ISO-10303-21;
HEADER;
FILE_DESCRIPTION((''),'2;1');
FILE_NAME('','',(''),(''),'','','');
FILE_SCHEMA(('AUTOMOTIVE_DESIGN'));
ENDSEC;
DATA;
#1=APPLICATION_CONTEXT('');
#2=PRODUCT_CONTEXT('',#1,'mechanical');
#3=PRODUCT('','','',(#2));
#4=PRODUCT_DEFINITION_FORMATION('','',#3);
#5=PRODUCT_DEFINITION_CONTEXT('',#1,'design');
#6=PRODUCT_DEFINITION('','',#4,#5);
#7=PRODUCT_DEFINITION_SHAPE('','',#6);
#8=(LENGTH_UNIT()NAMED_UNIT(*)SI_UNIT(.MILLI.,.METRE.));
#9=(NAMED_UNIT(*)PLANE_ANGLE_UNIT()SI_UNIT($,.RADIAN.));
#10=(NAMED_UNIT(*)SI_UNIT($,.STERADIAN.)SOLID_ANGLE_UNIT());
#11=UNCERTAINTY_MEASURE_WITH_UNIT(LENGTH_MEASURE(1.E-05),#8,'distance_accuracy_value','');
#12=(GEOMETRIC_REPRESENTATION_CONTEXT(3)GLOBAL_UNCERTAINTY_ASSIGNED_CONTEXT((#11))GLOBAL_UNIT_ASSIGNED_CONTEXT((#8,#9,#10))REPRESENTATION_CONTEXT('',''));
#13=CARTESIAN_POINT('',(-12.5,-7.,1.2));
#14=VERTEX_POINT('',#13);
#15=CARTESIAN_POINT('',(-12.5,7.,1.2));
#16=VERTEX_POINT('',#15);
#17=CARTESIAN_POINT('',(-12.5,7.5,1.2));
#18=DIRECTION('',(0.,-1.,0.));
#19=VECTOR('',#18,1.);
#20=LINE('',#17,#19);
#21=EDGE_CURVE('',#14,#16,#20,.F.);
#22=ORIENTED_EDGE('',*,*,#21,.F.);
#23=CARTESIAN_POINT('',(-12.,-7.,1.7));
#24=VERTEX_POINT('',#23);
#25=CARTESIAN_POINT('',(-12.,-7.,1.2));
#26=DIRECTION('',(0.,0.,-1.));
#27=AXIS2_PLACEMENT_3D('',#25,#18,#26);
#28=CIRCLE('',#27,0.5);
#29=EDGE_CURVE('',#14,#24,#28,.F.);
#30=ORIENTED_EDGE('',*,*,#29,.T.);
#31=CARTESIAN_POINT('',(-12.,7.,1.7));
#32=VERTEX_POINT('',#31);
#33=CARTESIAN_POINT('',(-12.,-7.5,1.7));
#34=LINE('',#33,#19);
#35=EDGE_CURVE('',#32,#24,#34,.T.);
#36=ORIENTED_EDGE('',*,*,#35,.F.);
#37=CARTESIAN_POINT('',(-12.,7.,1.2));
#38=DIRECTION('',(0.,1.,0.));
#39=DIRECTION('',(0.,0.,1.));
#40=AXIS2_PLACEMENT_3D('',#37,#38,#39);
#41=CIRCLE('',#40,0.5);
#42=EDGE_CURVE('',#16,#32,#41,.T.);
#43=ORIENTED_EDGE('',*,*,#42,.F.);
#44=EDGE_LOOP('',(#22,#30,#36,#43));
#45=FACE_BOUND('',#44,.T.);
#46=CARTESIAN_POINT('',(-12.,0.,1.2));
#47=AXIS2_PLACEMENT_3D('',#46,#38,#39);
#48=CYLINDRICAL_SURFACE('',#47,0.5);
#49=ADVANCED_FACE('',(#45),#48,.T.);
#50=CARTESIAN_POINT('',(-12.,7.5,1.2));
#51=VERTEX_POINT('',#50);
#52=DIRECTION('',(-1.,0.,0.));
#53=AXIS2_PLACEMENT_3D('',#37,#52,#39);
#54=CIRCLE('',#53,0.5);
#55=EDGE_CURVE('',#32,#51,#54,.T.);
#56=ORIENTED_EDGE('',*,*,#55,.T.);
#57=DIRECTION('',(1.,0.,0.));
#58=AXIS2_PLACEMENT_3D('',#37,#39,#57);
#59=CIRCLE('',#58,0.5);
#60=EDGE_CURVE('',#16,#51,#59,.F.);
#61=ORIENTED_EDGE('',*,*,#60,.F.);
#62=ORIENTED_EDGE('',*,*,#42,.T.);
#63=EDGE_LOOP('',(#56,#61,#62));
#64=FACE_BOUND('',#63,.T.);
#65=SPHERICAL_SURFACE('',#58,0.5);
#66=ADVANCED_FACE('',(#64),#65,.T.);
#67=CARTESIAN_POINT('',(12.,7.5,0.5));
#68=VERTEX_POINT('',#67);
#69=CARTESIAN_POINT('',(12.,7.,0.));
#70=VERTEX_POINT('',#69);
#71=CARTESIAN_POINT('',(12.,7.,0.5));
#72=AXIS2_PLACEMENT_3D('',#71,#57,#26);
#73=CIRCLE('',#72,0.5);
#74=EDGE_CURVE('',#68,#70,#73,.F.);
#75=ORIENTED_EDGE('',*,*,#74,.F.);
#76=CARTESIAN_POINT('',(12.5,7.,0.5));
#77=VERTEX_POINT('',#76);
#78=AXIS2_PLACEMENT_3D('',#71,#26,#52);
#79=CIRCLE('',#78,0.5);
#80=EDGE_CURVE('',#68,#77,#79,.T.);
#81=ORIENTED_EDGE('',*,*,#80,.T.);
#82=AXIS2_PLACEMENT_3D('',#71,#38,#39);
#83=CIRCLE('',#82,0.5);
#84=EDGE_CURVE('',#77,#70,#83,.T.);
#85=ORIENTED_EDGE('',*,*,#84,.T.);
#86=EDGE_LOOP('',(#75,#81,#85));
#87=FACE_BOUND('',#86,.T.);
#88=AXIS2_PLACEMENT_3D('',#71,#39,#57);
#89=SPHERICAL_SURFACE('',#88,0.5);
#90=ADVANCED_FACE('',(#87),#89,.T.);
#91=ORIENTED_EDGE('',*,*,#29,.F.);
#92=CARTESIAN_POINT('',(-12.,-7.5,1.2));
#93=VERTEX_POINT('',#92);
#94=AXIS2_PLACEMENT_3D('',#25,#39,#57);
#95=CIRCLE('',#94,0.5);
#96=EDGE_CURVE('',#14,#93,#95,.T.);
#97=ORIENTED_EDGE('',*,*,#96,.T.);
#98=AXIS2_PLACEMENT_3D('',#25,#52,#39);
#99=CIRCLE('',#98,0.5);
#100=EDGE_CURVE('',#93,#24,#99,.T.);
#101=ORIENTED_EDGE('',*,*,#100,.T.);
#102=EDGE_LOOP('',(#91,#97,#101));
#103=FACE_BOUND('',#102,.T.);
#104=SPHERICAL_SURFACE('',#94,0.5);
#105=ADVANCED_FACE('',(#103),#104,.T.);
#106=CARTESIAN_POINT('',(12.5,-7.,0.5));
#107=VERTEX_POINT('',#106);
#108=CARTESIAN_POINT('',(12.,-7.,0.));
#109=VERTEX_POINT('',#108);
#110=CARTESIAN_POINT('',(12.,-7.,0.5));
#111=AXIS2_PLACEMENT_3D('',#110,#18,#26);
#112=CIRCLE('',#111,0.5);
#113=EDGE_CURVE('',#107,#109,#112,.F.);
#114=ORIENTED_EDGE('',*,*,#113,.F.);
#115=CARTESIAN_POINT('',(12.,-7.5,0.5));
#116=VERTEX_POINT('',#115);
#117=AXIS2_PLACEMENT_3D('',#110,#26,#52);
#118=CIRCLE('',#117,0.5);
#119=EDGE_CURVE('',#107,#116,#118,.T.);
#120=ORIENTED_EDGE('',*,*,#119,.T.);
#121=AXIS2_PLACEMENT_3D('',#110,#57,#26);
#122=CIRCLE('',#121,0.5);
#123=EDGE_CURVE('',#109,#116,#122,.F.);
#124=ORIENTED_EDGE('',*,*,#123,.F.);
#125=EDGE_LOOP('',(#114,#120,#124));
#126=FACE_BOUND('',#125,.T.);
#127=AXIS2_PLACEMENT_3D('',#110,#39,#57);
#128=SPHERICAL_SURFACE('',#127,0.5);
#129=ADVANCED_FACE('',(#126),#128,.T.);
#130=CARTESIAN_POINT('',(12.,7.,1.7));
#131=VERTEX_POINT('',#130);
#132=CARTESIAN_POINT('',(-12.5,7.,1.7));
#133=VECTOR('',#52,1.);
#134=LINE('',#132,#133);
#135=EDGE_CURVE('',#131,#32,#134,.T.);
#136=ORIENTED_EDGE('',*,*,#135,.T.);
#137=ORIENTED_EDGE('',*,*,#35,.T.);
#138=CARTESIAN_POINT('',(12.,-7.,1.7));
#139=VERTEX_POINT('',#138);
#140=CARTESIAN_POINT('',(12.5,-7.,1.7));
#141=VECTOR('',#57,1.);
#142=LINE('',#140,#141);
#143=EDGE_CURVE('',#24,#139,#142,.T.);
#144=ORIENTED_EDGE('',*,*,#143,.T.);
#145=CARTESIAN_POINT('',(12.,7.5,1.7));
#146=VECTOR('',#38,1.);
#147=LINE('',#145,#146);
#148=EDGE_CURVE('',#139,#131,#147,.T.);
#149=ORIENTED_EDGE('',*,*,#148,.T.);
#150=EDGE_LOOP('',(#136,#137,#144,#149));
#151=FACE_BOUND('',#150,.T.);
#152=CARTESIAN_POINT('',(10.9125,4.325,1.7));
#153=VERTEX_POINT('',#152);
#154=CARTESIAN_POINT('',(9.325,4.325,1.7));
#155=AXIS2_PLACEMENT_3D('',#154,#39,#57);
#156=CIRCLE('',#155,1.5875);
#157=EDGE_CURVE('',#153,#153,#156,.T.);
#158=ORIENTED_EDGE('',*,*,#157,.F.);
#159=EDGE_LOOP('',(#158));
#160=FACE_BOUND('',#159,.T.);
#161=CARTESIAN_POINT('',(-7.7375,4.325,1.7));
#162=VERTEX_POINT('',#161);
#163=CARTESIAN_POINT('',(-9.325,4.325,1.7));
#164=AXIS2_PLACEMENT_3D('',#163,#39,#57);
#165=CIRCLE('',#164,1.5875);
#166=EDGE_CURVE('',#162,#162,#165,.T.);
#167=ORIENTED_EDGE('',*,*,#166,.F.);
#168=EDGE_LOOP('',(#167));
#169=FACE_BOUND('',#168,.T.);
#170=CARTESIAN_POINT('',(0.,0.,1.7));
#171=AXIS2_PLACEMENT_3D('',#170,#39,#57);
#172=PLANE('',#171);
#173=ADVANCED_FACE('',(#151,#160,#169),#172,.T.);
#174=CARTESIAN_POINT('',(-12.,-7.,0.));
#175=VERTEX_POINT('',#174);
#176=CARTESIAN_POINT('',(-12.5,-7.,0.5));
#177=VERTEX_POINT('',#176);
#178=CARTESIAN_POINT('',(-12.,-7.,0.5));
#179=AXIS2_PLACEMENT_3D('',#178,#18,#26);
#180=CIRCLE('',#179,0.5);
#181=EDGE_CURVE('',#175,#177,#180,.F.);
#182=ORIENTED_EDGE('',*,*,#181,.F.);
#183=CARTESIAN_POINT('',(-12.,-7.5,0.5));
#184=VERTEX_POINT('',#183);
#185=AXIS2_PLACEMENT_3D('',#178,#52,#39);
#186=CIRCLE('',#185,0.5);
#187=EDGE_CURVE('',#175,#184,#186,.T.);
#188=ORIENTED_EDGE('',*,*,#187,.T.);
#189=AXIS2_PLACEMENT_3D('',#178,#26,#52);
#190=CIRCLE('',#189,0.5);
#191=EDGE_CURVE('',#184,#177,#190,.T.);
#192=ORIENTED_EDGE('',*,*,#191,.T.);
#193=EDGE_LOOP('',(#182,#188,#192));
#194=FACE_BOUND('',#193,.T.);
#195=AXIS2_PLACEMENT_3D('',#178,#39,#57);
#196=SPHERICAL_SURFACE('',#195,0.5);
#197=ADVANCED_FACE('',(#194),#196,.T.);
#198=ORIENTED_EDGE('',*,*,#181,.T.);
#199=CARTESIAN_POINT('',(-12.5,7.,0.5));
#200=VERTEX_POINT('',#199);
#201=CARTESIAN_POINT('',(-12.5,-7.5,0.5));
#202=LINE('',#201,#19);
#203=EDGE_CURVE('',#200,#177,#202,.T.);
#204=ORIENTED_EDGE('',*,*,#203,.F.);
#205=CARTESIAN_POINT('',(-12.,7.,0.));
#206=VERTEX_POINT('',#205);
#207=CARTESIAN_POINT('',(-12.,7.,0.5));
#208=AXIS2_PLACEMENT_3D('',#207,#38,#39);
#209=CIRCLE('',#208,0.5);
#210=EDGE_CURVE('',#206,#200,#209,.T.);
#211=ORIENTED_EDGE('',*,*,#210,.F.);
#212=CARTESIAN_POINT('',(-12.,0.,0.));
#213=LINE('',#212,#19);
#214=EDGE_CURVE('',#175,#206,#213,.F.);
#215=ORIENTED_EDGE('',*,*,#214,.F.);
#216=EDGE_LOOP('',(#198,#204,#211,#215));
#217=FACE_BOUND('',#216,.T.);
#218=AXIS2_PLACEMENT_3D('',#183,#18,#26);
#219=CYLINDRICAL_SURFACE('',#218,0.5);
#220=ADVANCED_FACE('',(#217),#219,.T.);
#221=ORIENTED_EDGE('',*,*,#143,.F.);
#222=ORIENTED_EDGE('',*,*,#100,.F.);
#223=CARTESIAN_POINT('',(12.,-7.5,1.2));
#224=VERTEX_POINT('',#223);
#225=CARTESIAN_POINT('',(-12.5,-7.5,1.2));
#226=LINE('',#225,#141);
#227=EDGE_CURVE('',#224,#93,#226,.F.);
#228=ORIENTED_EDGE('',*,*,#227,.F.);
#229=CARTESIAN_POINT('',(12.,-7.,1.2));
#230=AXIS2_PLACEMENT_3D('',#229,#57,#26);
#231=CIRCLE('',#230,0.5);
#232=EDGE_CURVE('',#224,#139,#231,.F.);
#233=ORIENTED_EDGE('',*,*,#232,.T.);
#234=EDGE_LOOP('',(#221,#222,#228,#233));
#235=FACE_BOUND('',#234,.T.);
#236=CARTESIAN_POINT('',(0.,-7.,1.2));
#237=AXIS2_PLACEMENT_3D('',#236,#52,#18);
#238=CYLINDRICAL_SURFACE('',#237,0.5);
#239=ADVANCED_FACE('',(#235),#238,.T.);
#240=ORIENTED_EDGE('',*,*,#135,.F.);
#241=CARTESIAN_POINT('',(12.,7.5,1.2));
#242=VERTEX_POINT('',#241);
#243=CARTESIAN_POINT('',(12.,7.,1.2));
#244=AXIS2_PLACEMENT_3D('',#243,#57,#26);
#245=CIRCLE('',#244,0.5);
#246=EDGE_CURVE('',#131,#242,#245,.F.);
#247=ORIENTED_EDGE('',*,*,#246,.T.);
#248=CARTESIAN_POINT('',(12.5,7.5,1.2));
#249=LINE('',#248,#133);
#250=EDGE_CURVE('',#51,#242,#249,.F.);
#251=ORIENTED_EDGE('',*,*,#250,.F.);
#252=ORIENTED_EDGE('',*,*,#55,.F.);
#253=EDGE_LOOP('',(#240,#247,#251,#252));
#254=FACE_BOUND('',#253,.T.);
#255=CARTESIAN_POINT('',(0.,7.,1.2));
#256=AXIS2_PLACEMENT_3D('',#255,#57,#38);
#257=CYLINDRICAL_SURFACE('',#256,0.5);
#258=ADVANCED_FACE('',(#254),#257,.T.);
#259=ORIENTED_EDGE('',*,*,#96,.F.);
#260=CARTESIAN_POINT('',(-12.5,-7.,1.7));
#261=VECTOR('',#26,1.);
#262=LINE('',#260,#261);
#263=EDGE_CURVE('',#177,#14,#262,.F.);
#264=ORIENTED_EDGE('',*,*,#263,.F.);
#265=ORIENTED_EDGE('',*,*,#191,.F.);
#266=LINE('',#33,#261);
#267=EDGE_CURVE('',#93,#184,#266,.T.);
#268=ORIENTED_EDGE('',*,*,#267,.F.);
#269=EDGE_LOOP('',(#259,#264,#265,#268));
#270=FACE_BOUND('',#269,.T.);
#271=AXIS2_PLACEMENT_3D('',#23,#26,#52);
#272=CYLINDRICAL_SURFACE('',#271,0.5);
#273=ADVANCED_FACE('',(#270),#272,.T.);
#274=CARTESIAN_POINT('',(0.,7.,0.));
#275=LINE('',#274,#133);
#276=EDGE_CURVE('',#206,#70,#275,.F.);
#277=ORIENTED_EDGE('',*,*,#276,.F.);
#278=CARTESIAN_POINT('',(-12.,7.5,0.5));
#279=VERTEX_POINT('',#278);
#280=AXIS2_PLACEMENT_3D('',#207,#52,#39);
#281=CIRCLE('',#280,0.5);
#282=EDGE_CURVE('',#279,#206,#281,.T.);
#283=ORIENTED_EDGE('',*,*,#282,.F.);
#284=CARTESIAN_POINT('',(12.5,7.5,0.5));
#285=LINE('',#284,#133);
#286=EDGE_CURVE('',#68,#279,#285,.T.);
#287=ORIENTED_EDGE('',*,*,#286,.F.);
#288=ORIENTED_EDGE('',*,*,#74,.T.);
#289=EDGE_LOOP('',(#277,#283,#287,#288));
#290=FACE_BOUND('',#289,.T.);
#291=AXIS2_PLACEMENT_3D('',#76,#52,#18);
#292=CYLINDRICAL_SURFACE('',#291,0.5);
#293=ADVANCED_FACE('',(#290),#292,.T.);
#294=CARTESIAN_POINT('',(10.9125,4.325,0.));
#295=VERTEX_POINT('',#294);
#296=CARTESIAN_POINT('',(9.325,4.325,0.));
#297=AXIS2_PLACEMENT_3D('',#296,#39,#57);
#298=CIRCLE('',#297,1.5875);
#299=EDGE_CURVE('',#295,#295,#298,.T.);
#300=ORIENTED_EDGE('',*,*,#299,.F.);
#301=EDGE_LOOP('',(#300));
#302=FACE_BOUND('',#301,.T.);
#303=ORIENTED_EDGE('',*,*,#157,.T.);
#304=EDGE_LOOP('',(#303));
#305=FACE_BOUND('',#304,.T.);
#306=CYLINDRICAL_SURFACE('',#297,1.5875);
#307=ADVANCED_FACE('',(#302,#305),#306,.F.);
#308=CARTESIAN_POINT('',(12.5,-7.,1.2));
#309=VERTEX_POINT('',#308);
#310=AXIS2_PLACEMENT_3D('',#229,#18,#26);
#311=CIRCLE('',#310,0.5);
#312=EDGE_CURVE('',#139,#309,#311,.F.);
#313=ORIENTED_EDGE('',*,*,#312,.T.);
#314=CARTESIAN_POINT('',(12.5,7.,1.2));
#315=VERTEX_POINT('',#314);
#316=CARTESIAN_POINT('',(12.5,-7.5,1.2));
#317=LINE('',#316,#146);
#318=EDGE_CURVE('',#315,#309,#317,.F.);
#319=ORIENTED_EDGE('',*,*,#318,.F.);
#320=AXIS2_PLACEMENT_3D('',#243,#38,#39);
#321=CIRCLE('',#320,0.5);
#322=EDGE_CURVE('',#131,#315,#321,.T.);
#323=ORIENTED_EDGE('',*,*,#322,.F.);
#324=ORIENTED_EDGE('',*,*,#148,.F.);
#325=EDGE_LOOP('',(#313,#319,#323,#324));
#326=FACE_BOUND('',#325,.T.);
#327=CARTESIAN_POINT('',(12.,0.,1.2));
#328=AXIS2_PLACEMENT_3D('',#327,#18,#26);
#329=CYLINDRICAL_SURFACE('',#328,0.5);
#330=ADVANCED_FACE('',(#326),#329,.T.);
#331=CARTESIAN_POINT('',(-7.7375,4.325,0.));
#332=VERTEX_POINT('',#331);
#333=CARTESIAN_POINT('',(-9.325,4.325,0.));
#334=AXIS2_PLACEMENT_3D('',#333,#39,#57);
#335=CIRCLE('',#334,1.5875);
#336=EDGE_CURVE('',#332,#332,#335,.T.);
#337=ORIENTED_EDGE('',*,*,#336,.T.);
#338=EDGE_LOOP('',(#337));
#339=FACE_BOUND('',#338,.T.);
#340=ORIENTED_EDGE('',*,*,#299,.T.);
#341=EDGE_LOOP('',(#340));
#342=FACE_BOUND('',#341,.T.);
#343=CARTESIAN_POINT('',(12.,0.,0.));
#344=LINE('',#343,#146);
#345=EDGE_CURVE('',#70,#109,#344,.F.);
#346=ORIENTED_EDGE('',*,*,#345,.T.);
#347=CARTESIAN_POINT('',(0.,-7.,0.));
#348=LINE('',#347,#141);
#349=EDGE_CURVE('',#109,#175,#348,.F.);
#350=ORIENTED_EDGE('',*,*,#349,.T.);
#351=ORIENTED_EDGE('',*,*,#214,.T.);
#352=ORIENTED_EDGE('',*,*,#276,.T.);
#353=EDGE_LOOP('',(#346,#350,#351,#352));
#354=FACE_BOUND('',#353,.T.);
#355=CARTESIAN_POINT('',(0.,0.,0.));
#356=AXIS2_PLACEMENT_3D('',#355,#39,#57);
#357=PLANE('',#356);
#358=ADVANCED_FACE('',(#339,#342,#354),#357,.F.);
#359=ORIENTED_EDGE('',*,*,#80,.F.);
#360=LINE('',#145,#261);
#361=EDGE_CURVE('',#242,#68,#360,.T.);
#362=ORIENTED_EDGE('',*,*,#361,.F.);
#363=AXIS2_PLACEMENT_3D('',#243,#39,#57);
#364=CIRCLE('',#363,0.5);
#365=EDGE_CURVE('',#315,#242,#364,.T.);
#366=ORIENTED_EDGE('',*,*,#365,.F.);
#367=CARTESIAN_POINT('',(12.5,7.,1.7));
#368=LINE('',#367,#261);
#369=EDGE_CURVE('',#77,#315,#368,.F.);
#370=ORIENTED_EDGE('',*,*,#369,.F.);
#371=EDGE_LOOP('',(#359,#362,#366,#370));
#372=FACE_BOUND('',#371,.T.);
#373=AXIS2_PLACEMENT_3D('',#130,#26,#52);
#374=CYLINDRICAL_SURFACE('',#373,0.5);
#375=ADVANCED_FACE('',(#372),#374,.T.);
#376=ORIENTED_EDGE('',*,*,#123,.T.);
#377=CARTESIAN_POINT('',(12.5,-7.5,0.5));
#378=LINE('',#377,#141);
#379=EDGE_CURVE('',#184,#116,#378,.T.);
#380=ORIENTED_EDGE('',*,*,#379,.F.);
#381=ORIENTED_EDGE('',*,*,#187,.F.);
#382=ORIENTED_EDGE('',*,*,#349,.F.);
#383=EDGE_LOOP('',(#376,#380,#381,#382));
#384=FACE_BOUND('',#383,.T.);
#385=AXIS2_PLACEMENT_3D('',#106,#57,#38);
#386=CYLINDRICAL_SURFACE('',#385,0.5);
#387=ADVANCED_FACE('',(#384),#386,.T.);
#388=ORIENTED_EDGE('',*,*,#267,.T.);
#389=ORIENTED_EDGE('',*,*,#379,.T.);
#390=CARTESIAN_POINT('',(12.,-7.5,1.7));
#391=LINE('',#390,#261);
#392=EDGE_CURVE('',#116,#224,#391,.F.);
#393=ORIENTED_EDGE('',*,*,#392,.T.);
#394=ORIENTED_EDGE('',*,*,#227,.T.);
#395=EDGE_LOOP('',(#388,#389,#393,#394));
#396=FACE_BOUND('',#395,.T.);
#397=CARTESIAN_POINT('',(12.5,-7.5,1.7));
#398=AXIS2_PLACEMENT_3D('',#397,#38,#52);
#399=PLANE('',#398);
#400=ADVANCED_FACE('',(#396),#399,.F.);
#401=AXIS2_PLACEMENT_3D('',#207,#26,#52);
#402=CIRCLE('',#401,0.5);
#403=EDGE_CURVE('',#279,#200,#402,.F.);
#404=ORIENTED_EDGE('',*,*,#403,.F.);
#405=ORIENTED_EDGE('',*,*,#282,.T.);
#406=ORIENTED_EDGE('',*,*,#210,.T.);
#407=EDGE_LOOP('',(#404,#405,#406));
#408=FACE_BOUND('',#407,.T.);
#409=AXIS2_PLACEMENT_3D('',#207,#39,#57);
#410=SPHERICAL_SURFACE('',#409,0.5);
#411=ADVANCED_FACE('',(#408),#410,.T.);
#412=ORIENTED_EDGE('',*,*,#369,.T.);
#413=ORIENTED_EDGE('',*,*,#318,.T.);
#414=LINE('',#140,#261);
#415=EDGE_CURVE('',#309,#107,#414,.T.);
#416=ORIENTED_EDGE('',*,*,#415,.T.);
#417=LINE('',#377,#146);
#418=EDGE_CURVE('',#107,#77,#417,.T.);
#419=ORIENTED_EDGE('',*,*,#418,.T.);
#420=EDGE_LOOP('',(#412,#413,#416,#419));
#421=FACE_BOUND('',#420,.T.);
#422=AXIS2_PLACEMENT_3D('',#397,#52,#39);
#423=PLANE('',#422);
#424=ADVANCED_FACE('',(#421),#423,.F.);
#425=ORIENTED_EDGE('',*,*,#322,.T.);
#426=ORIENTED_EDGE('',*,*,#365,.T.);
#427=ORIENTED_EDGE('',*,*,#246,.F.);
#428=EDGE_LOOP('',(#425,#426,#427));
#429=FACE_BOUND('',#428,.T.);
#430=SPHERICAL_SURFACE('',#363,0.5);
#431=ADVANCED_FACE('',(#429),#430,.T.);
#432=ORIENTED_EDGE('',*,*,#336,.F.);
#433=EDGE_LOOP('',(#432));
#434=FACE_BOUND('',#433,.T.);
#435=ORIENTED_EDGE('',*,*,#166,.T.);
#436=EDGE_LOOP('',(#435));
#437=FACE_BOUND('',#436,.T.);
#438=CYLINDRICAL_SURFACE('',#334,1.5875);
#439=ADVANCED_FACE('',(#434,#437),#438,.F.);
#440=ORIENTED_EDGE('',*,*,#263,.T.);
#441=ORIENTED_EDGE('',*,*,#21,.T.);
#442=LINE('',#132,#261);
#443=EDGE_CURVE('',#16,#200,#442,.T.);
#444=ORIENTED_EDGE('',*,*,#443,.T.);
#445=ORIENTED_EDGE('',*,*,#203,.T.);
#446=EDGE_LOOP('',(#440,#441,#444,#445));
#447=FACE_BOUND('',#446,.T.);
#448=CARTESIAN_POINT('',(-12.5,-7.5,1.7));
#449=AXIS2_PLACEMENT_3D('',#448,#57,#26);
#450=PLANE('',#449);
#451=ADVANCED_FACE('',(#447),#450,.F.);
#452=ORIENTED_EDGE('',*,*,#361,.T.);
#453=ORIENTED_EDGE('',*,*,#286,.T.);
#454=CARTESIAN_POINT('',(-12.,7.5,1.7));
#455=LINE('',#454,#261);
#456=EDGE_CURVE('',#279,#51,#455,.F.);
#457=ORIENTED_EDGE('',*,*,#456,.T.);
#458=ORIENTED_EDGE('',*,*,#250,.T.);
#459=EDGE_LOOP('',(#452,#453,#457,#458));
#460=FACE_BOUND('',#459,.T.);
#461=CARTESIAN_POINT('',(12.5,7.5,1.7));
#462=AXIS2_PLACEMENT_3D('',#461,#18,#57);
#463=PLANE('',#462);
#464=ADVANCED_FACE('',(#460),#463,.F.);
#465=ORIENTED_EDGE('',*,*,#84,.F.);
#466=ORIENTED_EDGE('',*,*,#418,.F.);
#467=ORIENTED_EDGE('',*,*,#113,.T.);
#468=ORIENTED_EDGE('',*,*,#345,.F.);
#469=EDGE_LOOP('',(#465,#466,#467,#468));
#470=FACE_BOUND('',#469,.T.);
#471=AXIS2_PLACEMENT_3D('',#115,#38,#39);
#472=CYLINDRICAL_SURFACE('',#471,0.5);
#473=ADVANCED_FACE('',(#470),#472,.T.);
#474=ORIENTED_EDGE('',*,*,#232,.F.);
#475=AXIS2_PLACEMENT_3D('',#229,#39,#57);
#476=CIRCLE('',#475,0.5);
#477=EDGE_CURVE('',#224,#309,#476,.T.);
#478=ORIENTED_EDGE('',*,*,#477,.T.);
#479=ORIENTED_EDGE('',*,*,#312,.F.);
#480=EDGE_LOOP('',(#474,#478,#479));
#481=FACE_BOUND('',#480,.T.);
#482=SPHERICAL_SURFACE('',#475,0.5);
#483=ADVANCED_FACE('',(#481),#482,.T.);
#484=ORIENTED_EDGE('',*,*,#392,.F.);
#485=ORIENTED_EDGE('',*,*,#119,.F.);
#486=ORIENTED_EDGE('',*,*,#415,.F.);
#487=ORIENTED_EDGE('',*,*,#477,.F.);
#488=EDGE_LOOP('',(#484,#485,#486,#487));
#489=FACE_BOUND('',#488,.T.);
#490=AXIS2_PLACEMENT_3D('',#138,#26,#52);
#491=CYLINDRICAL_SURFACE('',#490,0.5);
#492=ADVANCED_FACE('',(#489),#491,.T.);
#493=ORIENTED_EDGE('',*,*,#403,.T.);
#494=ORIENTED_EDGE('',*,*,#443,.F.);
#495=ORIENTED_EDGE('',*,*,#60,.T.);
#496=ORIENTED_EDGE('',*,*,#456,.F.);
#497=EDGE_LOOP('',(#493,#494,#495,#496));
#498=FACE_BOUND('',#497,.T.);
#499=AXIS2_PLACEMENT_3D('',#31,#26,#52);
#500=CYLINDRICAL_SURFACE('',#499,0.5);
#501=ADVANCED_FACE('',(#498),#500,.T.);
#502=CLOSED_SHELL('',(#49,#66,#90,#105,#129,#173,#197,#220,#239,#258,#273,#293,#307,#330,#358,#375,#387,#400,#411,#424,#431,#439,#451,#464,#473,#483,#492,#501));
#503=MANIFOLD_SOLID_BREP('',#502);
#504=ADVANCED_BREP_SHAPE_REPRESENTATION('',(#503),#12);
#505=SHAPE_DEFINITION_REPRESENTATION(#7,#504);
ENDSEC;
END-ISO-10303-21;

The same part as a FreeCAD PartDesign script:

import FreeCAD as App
import Part
import Sketcher
from FreeCAD import Vector
Q = App.Units.Quantity


def edges_at(feature, points):
    """Names of the edges that pass closest to the given points."""
    edges = feature.Shape.Edges
    near = lambda p: min(range(len(edges)), key=lambda i: edges[i].distToShape(Part.Vertex(*p))[0])
    return sorted({f"Edge{near(p) + 1}" for p in points})

doc = App.newDocument("Part")
body = doc.addObject("PartDesign::Body", "Body")

# Sketch on XY plane
sketch1 = body.newObject("Sketcher::SketchObject", "Sketch")
sketch1.AttachmentSupport = (doc.getObject("XY_Plane"), [""])
sketch1.MapMode = "FlatFace"
sketch1.addGeometry([
    Part.LineSegment(Vector(-12, 8, 0), Vector(-12, -8, 0)),
    Part.LineSegment(Vector(-12, -8, 0), Vector(12, -8, 0)),
    Part.LineSegment(Vector(12, -8, 0), Vector(12, 8, 0)),
    Part.LineSegment(Vector(12, 8, 0), Vector(-12, 8, 0)),
], False)
sketch1.addConstraint([
    Sketcher.Constraint("Coincident", 0, 2, 1, 1),
    Sketcher.Constraint("Coincident", 1, 2, 2, 1),
    Sketcher.Constraint("Coincident", 2, 2, 3, 1),
    Sketcher.Constraint("Coincident", 3, 2, 0, 1),
    Sketcher.Constraint("Vertical", 0),
    Sketcher.Constraint("Horizontal", 1),
    Sketcher.Constraint("Vertical", 2),
    Sketcher.Constraint("Horizontal", 3),
    Sketcher.Constraint("Symmetric", 0, 2, 2, 2, -1, 1),
    Sketcher.Constraint("DistanceX", 1, 1, 1, 2, Q("25 mm")),
    Sketcher.Constraint("DistanceY", 0, 2, 0, 1, Q("15 mm")),
])
pad1 = body.newObject("PartDesign::Pad", "Pad")
pad1.Profile = sketch1
pad1.Length = 1.7

# Sketch on XY plane
sketch2 = body.newObject("Sketcher::SketchObject", "Sketch001")
sketch2.AttachmentSupport = (doc.getObject("XY_Plane"), [""])
sketch2.MapMode = "FlatFace"
sketch2.AttachmentOffset = App.Placement(Vector(0, 0, 1.7), App.Rotation())
sketch2.addGeometry([
    Part.Circle(Vector(-9.3, 4.3, 0), Vector(0, 0, 1), 1.6),
    Part.Circle(Vector(9.3, 4.3, 0), Vector(0, 0, 1), 1.6),
], False)
sketch2.addConstraint([
    Sketcher.Constraint("Equal", 0, 1),
    Sketcher.Constraint("Symmetric", 0, 3, 1, 3, -2),
    Sketcher.Constraint("Diameter", 0, Q("3.175 mm")),
    Sketcher.Constraint("DistanceX", 0, 3, 1, 3, Q("18.65 mm")),
    Sketcher.Constraint("DistanceY", -1, 1, 0, 3, Q("4.325 mm")),
])
pocket1 = body.newObject("PartDesign::Pocket", "Pocket")
pocket1.Profile = sketch2
pocket1.Type = "ThroughAll"
doc.recompute()

fillet = body.newObject("PartDesign::Fillet", "Fillet")
fillet.Base = (pocket1, edges_at(pocket1, [
    (12.5, 0, 1.7),
    (0, 7.5, 1.7),
    (-12.5, 0, 1.7),
    (0, 7.5, 0),
    (12.5, 0, 0),
    (0, -7.5, 0),
    (-12.5, 0, 0),
    (0, -7.5, 1.7),
    (-12.5, 7.5, 0.85),
    (12.5, 7.5, 0.85),
    (12.5, -7.5, 0.85),
    (-12.5, -7.5, 0.85),
]))
fillet.Radius = 0.5

doc.recompute()
